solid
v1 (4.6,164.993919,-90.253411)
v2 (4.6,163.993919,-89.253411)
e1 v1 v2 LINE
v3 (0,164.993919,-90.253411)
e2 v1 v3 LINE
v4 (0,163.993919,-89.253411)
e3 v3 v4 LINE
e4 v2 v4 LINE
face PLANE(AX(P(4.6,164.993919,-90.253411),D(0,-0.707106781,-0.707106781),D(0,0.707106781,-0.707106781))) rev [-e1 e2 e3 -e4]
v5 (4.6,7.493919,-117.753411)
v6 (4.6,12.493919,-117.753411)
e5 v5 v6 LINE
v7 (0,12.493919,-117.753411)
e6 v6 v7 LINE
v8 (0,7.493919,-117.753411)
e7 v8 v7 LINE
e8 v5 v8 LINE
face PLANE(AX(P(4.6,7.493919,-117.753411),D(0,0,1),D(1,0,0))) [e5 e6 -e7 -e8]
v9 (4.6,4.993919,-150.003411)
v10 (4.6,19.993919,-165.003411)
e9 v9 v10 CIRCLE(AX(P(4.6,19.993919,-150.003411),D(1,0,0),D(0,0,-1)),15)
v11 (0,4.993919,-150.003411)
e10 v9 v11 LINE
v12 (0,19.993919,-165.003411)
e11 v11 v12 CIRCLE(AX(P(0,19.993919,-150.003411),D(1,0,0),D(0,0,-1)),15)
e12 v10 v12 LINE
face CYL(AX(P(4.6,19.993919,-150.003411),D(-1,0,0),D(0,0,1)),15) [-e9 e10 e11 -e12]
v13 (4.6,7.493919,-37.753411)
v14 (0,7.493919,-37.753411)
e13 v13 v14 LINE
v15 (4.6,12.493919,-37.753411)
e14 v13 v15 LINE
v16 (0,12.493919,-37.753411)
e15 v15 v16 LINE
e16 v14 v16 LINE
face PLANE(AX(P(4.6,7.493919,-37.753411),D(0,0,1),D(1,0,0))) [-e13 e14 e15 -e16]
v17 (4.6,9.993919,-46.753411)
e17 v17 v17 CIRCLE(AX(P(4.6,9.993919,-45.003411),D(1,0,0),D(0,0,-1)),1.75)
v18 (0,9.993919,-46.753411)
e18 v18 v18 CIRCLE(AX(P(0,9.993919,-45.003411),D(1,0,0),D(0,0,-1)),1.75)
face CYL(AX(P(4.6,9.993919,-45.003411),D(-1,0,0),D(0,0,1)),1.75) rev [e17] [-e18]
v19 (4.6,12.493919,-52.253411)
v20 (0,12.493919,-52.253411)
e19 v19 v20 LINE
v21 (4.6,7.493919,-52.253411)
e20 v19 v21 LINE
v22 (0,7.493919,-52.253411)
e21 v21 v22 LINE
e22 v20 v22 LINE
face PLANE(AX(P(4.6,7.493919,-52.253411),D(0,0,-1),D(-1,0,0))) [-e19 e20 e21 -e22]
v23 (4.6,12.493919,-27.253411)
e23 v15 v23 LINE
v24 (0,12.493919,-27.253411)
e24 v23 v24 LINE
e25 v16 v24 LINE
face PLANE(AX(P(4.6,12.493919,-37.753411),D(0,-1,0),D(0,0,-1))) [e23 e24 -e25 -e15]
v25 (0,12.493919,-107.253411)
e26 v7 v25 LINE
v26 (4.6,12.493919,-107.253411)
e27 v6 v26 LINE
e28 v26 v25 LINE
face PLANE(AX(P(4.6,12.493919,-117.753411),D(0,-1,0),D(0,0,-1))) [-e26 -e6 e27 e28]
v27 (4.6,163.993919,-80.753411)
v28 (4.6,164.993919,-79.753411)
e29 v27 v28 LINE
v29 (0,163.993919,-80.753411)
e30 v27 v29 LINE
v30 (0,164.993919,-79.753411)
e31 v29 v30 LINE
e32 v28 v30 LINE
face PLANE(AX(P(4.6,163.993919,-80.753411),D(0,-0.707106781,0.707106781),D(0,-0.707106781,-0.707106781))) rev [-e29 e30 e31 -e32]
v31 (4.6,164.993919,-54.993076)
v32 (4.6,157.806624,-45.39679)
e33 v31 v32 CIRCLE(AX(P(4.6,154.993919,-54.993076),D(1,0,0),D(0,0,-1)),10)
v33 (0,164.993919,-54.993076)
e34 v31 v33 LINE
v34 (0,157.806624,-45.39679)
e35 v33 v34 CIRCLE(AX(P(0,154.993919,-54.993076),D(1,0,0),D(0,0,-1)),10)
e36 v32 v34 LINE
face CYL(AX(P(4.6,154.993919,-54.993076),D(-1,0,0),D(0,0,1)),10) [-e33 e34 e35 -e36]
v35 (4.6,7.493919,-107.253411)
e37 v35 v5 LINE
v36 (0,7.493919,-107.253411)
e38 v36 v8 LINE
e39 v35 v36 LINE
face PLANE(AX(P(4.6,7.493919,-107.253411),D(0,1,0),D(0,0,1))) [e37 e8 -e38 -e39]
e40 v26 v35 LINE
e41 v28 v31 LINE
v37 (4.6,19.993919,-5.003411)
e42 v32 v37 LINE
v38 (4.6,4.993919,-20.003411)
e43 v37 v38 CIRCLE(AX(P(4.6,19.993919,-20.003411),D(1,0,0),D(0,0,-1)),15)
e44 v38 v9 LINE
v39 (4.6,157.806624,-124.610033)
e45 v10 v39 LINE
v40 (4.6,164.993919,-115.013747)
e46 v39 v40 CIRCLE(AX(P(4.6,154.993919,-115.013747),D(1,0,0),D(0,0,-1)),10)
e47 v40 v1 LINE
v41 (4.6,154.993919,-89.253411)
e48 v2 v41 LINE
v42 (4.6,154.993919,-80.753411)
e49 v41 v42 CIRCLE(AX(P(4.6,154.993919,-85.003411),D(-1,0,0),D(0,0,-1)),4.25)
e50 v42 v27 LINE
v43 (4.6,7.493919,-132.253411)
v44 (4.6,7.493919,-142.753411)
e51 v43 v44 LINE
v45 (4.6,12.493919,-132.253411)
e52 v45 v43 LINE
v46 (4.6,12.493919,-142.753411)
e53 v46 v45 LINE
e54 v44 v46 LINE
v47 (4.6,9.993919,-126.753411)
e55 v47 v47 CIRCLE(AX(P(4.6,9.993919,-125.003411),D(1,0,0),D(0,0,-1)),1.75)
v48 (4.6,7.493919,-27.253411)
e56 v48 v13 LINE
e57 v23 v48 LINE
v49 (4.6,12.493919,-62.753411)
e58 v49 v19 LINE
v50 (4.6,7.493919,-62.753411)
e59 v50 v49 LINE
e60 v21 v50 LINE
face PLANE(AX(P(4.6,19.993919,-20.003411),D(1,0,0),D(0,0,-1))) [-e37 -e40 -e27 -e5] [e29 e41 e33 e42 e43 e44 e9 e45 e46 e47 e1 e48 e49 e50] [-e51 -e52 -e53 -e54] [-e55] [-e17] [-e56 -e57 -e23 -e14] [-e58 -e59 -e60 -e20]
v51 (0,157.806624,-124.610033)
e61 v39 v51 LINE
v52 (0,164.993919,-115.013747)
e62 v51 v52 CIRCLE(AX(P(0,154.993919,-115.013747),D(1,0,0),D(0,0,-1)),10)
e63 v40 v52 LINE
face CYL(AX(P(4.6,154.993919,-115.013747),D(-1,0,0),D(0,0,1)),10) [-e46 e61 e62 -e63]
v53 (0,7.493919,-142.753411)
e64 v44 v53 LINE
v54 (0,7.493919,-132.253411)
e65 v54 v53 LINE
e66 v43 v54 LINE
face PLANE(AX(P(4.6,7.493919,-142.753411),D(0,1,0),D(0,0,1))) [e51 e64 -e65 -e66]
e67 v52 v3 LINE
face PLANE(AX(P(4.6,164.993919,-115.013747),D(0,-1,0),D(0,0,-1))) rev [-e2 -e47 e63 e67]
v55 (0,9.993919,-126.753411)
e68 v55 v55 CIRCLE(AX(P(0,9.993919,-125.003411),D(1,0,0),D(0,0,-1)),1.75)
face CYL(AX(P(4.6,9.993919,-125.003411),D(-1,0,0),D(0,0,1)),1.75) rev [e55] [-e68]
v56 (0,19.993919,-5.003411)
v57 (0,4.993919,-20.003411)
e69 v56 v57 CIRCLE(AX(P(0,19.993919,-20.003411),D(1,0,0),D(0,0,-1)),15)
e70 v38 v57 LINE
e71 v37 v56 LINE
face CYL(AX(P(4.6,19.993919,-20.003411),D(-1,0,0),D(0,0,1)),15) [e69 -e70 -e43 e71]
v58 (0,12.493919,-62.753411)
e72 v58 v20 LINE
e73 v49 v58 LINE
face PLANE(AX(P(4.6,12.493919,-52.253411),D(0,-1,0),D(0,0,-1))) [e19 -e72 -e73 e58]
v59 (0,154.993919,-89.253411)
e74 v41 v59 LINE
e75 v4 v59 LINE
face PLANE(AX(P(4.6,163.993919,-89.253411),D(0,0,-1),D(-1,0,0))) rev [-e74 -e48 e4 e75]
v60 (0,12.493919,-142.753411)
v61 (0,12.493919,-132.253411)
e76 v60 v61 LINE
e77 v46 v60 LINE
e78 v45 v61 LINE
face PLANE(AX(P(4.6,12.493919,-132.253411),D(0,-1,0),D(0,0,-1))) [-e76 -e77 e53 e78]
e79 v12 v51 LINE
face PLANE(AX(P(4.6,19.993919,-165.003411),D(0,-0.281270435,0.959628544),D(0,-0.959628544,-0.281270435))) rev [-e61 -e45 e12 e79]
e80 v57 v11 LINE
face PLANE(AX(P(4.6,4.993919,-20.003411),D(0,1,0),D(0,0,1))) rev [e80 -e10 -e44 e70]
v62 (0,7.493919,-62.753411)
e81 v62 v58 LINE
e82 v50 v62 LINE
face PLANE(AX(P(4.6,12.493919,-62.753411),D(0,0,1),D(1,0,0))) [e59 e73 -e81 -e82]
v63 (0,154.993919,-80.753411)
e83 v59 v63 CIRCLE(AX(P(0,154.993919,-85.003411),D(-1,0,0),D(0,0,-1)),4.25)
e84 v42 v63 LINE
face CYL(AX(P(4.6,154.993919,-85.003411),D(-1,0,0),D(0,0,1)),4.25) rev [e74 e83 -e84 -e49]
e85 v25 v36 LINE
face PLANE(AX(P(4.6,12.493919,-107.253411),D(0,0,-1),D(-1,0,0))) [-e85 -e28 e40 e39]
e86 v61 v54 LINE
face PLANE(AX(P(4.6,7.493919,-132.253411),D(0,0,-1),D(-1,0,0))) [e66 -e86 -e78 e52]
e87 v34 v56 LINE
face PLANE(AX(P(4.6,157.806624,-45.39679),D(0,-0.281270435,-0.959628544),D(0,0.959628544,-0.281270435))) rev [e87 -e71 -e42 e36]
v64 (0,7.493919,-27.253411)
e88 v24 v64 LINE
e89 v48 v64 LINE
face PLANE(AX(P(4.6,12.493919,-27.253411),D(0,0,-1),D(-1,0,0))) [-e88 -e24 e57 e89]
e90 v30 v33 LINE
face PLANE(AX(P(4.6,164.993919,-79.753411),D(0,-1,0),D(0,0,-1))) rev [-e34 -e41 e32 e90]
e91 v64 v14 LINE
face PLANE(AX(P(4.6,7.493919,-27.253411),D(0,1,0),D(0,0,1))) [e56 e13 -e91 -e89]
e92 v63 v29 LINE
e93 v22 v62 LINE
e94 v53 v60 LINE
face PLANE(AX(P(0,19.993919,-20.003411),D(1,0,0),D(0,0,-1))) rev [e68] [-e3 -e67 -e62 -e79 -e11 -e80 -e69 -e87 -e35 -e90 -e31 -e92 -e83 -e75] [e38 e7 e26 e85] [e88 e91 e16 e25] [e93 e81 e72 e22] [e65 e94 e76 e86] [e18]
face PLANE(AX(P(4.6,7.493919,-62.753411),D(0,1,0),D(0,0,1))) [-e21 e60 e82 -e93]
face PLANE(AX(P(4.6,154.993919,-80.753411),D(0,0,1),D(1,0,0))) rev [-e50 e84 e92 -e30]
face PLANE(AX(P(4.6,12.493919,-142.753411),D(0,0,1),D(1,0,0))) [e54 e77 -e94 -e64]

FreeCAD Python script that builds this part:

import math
import FreeCAD as App
import Part
import Sketcher
from FreeCAD import Vector
Q = App.Units.Quantity

doc = App.newDocument("Part")
body = doc.addObject("PartDesign::Body", "Body")

sketch1 = body.newObject("Sketcher::SketchObject", "Sketch")
sketch1.AttachmentSupport = (doc.getObject("YZ_Plane"), [""])
sketch1.MapMode = "FlatFace"
sketch1.addGeometry([
    Part.LineSegment(Vector(5, -20, 0), Vector(5, -150, 0)),
    Part.ArcOfCircle(Part.Circle(Vector(20, -150, 0), Vector(0, 0, 1), 15), math.radians(180), math.radians(270)),
    Part.LineSegment(Vector(20, -165, 0), Vector(157.8, -124.6, 0)),
    Part.ArcOfCircle(Part.Circle(Vector(155, -115, 0), Vector(0, 0, 1), 10), math.radians(-74), math.radians(0)),
    Part.LineSegment(Vector(165, -115, 0), Vector(165, -90.3, 0)),
    Part.LineSegment(Vector(165, -90.3, 0), Vector(164, -89.3, 0)),
    Part.LineSegment(Vector(164, -89.3, 0), Vector(155, -89.3, 0)),
    Part.ArcOfCircle(Part.Circle(Vector(155, -85, 0), Vector(0, 0, 1), 4.2), math.radians(90), math.radians(270)),
    Part.LineSegment(Vector(155, -80.8, 0), Vector(164, -80.8, 0)),
    Part.LineSegment(Vector(164, -80.8, 0), Vector(165, -79.8, 0)),
    Part.LineSegment(Vector(165, -79.8, 0), Vector(165, -55, 0)),
    Part.ArcOfCircle(Part.Circle(Vector(155, -55, 0), Vector(0, 0, 1), 10), math.radians(0), math.radians(74)),
    Part.LineSegment(Vector(157.8, -45.4, 0), Vector(20, -5, 0)),
    Part.ArcOfCircle(Part.Circle(Vector(20, -20, 0), Vector(0, 0, 1), 15), math.radians(90), math.radians(180)),
    Part.LineSegment(Vector(7.5, -37.8, 0), Vector(7.5, -27.3, 0)),
    Part.LineSegment(Vector(7.5, -27.3, 0), Vector(12.5, -27.3, 0)),
    Part.LineSegment(Vector(12.5, -27.3, 0), Vector(12.5, -37.8, 0)),
    Part.LineSegment(Vector(12.5, -37.8, 0), Vector(7.5, -37.8, 0)),
    Part.Circle(Vector(10, -45, 0), Vector(0, 0, 1), 1.8),
    Part.LineSegment(Vector(7.5, -62.8, 0), Vector(7.5, -52.3, 0)),
    Part.LineSegment(Vector(7.5, -52.3, 0), Vector(12.5, -52.3, 0)),
    Part.LineSegment(Vector(12.5, -52.3, 0), Vector(12.5, -62.8, 0)),
    Part.LineSegment(Vector(12.5, -62.8, 0), Vector(7.5, -62.8, 0)),
    Part.LineSegment(Vector(7.5, -117.8, 0), Vector(7.5, -107.3, 0)),
    Part.LineSegment(Vector(7.5, -107.3, 0), Vector(12.5, -107.3, 0)),
    Part.LineSegment(Vector(12.5, -107.3, 0), Vector(12.5, -117.8, 0)),
    Part.LineSegment(Vector(12.5, -117.8, 0), Vector(7.5, -117.8, 0)),
    Part.Circle(Vector(10, -125, 0), Vector(0, 0, 1), 1.8),
    Part.LineSegment(Vector(7.5, -142.8, 0), Vector(7.5, -132.3, 0)),
    Part.LineSegment(Vector(7.5, -132.3, 0), Vector(12.5, -132.3, 0)),
    Part.LineSegment(Vector(12.5, -132.3, 0), Vector(12.5, -142.8, 0)),
    Part.LineSegment(Vector(12.5, -142.8, 0), Vector(7.5, -142.8, 0)),
], False)
sketch1.addConstraint([
    Sketcher.Constraint("Tangent", 0, 2, 1, 1),
    Sketcher.Constraint("Coincident", 1, 2, 2, 1),
    Sketcher.Constraint("Tangent", 2, 2, 3, 1),
    Sketcher.Constraint("Tangent", 3, 2, 4, 1),
    Sketcher.Constraint("Coincident", 4, 2, 5, 1),
    Sketcher.Constraint("Coincident", 5, 2, 6, 1),
    Sketcher.Constraint("Tangent", 6, 2, 7, 2),
    Sketcher.Constraint("Tangent", 7, 1, 8, 1),
    Sketcher.Constraint("Coincident", 8, 2, 9, 1),
    Sketcher.Constraint("Coincident", 9, 2, 10, 1),
    Sketcher.Constraint("Tangent", 10, 2, 11, 1),
    Sketcher.Constraint("Tangent", 11, 2, 12, 1),
    Sketcher.Constraint("Coincident", 12, 2, 13, 1),
    Sketcher.Constraint("Tangent", 13, 2, 0, 1),
    Sketcher.Constraint("Coincident", 14, 2, 15, 1),
    Sketcher.Constraint("Coincident", 15, 2, 16, 1),
    Sketcher.Constraint("Coincident", 16, 2, 17, 1),
    Sketcher.Constraint("Coincident", 17, 2, 14, 1),
    Sketcher.Constraint("Coincident", 19, 2, 20, 1),
    Sketcher.Constraint("Coincident", 20, 2, 21, 1),
    Sketcher.Constraint("Coincident", 21, 2, 22, 1),
    Sketcher.Constraint("Coincident", 22, 2, 19, 1),
    Sketcher.Constraint("Coincident", 23, 2, 24, 1),
    Sketcher.Constraint("Coincident", 24, 2, 25, 1),
    Sketcher.Constraint("Coincident", 25, 2, 26, 1),
    Sketcher.Constraint("Coincident", 26, 2, 23, 1),
    Sketcher.Constraint("Coincident", 28, 2, 29, 1),
    Sketcher.Constraint("Coincident", 29, 2, 30, 1),
    Sketcher.Constraint("Coincident", 30, 2, 31, 1),
    Sketcher.Constraint("Coincident", 31, 2, 28, 1),
    Sketcher.Constraint("Vertical", 0),
    Sketcher.Constraint("Vertical", 4),
    Sketcher.Constraint("Horizontal", 6),
    Sketcher.Constraint("Horizontal", 8),
    Sketcher.Constraint("Vertical", 10),
    Sketcher.Constraint("Vertical", 14),
    Sketcher.Constraint("Horizontal", 15),
    Sketcher.Constraint("Vertical", 16),
    Sketcher.Constraint("Horizontal", 17),
    Sketcher.Constraint("Vertical", 19),
    Sketcher.Constraint("Horizontal", 20),
    Sketcher.Constraint("Vertical", 21),
    Sketcher.Constraint("Horizontal", 22),
    Sketcher.Constraint("Vertical", 23),
    Sketcher.Constraint("Horizontal", 24),
    Sketcher.Constraint("Vertical", 25),
    Sketcher.Constraint("Horizontal", 26),
    Sketcher.Constraint("Vertical", 28),
    Sketcher.Constraint("Horizontal", 29),
    Sketcher.Constraint("Vertical", 30),
    Sketcher.Constraint("Horizontal", 31),
    Sketcher.Constraint("Equal", 3, 11),
    Sketcher.Constraint("Equal", 1, 13),
    Sketcher.Constraint("Equal", 18, 27),
    Sketcher.Constraint("Perpendicular", 5, 9),
    Sketcher.Constraint("Vertical", 3, 3, 7, 3),
    Sketcher.Constraint("Vertical", 7, 3, 11, 3),
    Sketcher.Constraint("Vertical", 18, 3, 27, 3),
    Sketcher.Constraint("Vertical", 13, 3, 1, 2),
    Sketcher.Constraint("Vertical", 5, 2, 8, 2),
    Sketcher.Constraint("Vertical", 2, 2, 11, 2),
    Sketcher.Constraint("Vertical", 1, 2, 12, 2),
    Sketcher.Constraint("Vertical", 17, 2, 19, 2),
    Sketcher.Constraint("Vertical", 16, 2, 20, 2),
    Sketcher.Constraint("Vertical", 22, 2, 23, 2),
    Sketcher.Constraint("Vertical", 21, 2, 24, 2),
    Sketcher.Constraint("Vertical", 26, 2, 28, 2),
    Sketcher.Constraint("Vertical", 25, 2, 29, 2),
    Sketcher.Constraint("Equal", 4, 10),
    Sketcher.Constraint("Equal", 16, 19),
    Sketcher.Constraint("Equal", 21, 23),
    Sketcher.Constraint("Equal", 25, 28),
    Sketcher.Constraint("Equal", 5, 9),
    Sketcher.Constraint("Radius", 1, Q("15 mm")),
    Sketcher.Constraint("Radius", 3, Q("10 mm")),
    Sketcher.Constraint("Diameter", 18, Q("3.5 mm")),
    Sketcher.Constraint("DistanceX", 6, 2, 6, 1, Q("9 mm")),
    Sketcher.Constraint("DistanceX", 15, 1, 15, 2, Q("5 mm")),
    Sketcher.Constraint("DistanceY", 0, 2, 0, 1, Q("130 mm")),
    Sketcher.Constraint("Radius", 7, Q("4.25 mm")),
    Sketcher.Constraint("DistanceY", 14, 1, 14, 2, Q("10.5 mm")),
    Sketcher.Constraint("DistanceX", 1, 3, 3, 3, Q("135 mm")),
    Sketcher.Constraint("DistanceX", 18, 3, 13, 3, Q("10 mm")),
    Sketcher.Constraint("DistanceY", 18, 3, 13, 3, Q("25 mm")),
    Sketcher.Constraint("DistanceY", 1, 3, 27, 3, Q("25 mm")),
    Sketcher.Constraint("DistanceY", 19, 2, 14, 2, Q("25 mm")),
    Sketcher.Constraint("DistanceX", 13, 2, 14, 2, Q("2.5 mm")),
    Sketcher.Constraint("DistanceY", 23, 2, 22, 2, Q("44.5 mm")),
    Sketcher.Constraint("DistanceY", 28, 2, 26, 2, Q("14.5 mm")),
    Sketcher.Constraint("DistanceY", 14, 2, 13, 2, Q("7.25 mm")),
    Sketcher.Constraint("Distance", 2, Q("143.610468 mm")),
    Sketcher.Constraint("DistanceX", -1, 1, 1, 3, Q("19.993919 mm")),
    Sketcher.Constraint("DistanceY", 1, 3, -1, 1, Q("150.003411 mm")),
])
pad1 = body.newObject("PartDesign::Pad", "Pad")
pad1.Profile = sketch1
pad1.Length = 4.6

doc.recompute()
